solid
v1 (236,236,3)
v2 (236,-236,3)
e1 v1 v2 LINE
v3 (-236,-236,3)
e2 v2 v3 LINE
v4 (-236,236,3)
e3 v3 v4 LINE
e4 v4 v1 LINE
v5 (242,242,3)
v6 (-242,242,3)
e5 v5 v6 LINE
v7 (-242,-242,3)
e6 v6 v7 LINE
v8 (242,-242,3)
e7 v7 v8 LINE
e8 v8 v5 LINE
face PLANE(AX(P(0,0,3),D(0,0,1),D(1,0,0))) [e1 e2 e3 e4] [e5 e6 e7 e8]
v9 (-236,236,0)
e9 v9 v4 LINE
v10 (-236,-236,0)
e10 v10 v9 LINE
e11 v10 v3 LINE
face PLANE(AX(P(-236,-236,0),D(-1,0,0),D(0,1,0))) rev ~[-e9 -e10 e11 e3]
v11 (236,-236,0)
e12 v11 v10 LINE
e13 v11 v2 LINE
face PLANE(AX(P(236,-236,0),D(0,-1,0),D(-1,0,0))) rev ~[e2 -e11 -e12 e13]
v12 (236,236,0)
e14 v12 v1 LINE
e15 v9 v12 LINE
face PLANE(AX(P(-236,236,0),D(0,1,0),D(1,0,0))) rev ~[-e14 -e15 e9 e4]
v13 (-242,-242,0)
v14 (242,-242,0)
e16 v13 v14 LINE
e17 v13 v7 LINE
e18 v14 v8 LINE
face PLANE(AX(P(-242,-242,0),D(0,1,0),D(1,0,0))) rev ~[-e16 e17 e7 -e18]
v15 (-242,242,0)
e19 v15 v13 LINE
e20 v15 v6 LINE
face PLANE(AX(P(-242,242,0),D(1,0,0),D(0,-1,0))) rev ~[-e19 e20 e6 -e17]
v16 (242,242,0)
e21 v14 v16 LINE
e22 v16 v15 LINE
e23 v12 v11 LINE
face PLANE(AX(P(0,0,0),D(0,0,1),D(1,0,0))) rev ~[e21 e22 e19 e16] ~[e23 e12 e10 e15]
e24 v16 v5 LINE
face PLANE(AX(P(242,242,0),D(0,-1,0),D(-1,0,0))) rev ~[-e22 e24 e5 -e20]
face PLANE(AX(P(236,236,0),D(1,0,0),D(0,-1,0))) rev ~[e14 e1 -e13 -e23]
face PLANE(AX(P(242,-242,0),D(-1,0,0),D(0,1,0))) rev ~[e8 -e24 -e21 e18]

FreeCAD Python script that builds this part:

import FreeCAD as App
import Part
import Sketcher
from FreeCAD import Vector
Q = App.Units.Quantity


def add_polygon(sketch, points):
    """Adds a closed chain of lines whose ends are joined by coincident constraints."""
    first, n = sketch.GeometryCount, len(points)
    for a, b in zip(points, points[1:] + points[:1]):
        sketch.addGeometry(Part.LineSegment(App.Vector(*a, 0), App.Vector(*b, 0)), False)
    for i in range(n):
        sketch.addConstraint(Sketcher.Constraint("Coincident", first + i, 2, first + (i + 1) % n, 1))

doc = App.newDocument("Part")
body = doc.addObject("PartDesign::Body", "Body")

sketch1 = doc.addObject("Sketcher::SketchObject", "Sketch")
body.addObject(sketch1)
sketch1.AttachmentSupport = (doc.XY_Plane, [""])
sketch1.MapMode = "FlatFace"
add_polygon(sketch1, [(-242, 242), (-242, -242), (242, -242), (242, 242)])
add_polygon(sketch1, [(-236, -236), (-236, 236), (236, 236), (236, -236)])
sketch1.addConstraint([
    Sketcher.Constraint("Vertical", 0),
    Sketcher.Constraint("Horizontal", 1),
    Sketcher.Constraint("Vertical", 2),
    Sketcher.Constraint("Horizontal", 3),
    Sketcher.Constraint("Vertical", 4),
    Sketcher.Constraint("Horizontal", 5),
    Sketcher.Constraint("Vertical", 6),
    Sketcher.Constraint("Horizontal", 7),
    Sketcher.Constraint("Symmetric", 0, 2, 2, 2, -1, 1),
    Sketcher.Constraint("Symmetric", 4, 2, 6, 2, -1, 1),
    Sketcher.Constraint("Equal", 3, 0),
    Sketcher.Constraint("Equal", 7, 4),
    Sketcher.Constraint("DistanceX", 1, 1, 1, 2, Q("484 mm")),
    Sketcher.Constraint("DistanceX", 3, 2, 4, 2, Q("6 mm")),
])
pad1 = doc.addObject("PartDesign::Pad", "Pad")
body.addObject(pad1)
pad1.Profile = sketch1
pad1.Length = 3

doc.recompute()
